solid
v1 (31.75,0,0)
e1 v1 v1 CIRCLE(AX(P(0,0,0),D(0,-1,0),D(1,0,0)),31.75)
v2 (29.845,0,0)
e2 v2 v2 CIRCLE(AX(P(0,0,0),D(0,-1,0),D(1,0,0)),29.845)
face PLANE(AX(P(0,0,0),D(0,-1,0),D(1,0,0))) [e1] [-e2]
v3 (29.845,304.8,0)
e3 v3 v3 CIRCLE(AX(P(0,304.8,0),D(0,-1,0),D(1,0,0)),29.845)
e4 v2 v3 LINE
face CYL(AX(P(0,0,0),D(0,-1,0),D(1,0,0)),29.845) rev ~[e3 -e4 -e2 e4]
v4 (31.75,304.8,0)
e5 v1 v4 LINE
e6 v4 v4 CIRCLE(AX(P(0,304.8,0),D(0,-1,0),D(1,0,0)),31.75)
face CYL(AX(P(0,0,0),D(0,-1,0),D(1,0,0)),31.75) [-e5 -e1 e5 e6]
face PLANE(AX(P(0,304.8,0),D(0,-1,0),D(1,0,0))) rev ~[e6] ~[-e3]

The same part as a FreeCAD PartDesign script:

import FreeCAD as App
import Part
import Sketcher
from FreeCAD import Vector
Q = App.Units.Quantity

doc = App.newDocument("Part")
body = doc.addObject("PartDesign::Body", "Body")

# Sketch on XZ plane
sketch1 = doc.addObject("Sketcher::SketchObject", "Sketch")
body.addObject(sketch1)
sketch1.AttachmentSupport = (doc.XZ_Plane, [""])
sketch1.MapMode = "FlatFace"
sketch1.addGeometry(Part.Circle(Vector(0, 0, 0), Vector(0, 0, 1), 31.75), False)
sketch1.addConstraint([
    Sketcher.Constraint("Coincident", 0, 3, -1, 1),
    Sketcher.Constraint("Diameter", 0, Q("2.5 in")),
])
pad1 = doc.addObject("PartDesign::Pad", "Pad")
body.addObject(pad1)
pad1.Profile = sketch1
pad1.Length = Q("12 in")
pad1.Reversed = True

# Sketch on XZ plane
sketch2 = doc.addObject("Sketcher::SketchObject", "Sketch001")
body.addObject(sketch2)
sketch2.AttachmentSupport = (doc.XZ_Plane, [""])
sketch2.MapMode = "FlatFace"
sketch2.addGeometry(Part.Circle(Vector(0, 0, 0), Vector(0, 0, 1), 29.845), False)
sketch2.addConstraint([
    Sketcher.Constraint("Coincident", 0, 3, -1, 1),
    Sketcher.Constraint("Diameter", 0, Q("2.35 in")),
])
pocket1 = doc.addObject("PartDesign::Pocket", "Pocket")
body.addObject(pocket1)
pocket1.Profile = sketch2
pocket1.Length = Q("12 in")

doc.recompute()
